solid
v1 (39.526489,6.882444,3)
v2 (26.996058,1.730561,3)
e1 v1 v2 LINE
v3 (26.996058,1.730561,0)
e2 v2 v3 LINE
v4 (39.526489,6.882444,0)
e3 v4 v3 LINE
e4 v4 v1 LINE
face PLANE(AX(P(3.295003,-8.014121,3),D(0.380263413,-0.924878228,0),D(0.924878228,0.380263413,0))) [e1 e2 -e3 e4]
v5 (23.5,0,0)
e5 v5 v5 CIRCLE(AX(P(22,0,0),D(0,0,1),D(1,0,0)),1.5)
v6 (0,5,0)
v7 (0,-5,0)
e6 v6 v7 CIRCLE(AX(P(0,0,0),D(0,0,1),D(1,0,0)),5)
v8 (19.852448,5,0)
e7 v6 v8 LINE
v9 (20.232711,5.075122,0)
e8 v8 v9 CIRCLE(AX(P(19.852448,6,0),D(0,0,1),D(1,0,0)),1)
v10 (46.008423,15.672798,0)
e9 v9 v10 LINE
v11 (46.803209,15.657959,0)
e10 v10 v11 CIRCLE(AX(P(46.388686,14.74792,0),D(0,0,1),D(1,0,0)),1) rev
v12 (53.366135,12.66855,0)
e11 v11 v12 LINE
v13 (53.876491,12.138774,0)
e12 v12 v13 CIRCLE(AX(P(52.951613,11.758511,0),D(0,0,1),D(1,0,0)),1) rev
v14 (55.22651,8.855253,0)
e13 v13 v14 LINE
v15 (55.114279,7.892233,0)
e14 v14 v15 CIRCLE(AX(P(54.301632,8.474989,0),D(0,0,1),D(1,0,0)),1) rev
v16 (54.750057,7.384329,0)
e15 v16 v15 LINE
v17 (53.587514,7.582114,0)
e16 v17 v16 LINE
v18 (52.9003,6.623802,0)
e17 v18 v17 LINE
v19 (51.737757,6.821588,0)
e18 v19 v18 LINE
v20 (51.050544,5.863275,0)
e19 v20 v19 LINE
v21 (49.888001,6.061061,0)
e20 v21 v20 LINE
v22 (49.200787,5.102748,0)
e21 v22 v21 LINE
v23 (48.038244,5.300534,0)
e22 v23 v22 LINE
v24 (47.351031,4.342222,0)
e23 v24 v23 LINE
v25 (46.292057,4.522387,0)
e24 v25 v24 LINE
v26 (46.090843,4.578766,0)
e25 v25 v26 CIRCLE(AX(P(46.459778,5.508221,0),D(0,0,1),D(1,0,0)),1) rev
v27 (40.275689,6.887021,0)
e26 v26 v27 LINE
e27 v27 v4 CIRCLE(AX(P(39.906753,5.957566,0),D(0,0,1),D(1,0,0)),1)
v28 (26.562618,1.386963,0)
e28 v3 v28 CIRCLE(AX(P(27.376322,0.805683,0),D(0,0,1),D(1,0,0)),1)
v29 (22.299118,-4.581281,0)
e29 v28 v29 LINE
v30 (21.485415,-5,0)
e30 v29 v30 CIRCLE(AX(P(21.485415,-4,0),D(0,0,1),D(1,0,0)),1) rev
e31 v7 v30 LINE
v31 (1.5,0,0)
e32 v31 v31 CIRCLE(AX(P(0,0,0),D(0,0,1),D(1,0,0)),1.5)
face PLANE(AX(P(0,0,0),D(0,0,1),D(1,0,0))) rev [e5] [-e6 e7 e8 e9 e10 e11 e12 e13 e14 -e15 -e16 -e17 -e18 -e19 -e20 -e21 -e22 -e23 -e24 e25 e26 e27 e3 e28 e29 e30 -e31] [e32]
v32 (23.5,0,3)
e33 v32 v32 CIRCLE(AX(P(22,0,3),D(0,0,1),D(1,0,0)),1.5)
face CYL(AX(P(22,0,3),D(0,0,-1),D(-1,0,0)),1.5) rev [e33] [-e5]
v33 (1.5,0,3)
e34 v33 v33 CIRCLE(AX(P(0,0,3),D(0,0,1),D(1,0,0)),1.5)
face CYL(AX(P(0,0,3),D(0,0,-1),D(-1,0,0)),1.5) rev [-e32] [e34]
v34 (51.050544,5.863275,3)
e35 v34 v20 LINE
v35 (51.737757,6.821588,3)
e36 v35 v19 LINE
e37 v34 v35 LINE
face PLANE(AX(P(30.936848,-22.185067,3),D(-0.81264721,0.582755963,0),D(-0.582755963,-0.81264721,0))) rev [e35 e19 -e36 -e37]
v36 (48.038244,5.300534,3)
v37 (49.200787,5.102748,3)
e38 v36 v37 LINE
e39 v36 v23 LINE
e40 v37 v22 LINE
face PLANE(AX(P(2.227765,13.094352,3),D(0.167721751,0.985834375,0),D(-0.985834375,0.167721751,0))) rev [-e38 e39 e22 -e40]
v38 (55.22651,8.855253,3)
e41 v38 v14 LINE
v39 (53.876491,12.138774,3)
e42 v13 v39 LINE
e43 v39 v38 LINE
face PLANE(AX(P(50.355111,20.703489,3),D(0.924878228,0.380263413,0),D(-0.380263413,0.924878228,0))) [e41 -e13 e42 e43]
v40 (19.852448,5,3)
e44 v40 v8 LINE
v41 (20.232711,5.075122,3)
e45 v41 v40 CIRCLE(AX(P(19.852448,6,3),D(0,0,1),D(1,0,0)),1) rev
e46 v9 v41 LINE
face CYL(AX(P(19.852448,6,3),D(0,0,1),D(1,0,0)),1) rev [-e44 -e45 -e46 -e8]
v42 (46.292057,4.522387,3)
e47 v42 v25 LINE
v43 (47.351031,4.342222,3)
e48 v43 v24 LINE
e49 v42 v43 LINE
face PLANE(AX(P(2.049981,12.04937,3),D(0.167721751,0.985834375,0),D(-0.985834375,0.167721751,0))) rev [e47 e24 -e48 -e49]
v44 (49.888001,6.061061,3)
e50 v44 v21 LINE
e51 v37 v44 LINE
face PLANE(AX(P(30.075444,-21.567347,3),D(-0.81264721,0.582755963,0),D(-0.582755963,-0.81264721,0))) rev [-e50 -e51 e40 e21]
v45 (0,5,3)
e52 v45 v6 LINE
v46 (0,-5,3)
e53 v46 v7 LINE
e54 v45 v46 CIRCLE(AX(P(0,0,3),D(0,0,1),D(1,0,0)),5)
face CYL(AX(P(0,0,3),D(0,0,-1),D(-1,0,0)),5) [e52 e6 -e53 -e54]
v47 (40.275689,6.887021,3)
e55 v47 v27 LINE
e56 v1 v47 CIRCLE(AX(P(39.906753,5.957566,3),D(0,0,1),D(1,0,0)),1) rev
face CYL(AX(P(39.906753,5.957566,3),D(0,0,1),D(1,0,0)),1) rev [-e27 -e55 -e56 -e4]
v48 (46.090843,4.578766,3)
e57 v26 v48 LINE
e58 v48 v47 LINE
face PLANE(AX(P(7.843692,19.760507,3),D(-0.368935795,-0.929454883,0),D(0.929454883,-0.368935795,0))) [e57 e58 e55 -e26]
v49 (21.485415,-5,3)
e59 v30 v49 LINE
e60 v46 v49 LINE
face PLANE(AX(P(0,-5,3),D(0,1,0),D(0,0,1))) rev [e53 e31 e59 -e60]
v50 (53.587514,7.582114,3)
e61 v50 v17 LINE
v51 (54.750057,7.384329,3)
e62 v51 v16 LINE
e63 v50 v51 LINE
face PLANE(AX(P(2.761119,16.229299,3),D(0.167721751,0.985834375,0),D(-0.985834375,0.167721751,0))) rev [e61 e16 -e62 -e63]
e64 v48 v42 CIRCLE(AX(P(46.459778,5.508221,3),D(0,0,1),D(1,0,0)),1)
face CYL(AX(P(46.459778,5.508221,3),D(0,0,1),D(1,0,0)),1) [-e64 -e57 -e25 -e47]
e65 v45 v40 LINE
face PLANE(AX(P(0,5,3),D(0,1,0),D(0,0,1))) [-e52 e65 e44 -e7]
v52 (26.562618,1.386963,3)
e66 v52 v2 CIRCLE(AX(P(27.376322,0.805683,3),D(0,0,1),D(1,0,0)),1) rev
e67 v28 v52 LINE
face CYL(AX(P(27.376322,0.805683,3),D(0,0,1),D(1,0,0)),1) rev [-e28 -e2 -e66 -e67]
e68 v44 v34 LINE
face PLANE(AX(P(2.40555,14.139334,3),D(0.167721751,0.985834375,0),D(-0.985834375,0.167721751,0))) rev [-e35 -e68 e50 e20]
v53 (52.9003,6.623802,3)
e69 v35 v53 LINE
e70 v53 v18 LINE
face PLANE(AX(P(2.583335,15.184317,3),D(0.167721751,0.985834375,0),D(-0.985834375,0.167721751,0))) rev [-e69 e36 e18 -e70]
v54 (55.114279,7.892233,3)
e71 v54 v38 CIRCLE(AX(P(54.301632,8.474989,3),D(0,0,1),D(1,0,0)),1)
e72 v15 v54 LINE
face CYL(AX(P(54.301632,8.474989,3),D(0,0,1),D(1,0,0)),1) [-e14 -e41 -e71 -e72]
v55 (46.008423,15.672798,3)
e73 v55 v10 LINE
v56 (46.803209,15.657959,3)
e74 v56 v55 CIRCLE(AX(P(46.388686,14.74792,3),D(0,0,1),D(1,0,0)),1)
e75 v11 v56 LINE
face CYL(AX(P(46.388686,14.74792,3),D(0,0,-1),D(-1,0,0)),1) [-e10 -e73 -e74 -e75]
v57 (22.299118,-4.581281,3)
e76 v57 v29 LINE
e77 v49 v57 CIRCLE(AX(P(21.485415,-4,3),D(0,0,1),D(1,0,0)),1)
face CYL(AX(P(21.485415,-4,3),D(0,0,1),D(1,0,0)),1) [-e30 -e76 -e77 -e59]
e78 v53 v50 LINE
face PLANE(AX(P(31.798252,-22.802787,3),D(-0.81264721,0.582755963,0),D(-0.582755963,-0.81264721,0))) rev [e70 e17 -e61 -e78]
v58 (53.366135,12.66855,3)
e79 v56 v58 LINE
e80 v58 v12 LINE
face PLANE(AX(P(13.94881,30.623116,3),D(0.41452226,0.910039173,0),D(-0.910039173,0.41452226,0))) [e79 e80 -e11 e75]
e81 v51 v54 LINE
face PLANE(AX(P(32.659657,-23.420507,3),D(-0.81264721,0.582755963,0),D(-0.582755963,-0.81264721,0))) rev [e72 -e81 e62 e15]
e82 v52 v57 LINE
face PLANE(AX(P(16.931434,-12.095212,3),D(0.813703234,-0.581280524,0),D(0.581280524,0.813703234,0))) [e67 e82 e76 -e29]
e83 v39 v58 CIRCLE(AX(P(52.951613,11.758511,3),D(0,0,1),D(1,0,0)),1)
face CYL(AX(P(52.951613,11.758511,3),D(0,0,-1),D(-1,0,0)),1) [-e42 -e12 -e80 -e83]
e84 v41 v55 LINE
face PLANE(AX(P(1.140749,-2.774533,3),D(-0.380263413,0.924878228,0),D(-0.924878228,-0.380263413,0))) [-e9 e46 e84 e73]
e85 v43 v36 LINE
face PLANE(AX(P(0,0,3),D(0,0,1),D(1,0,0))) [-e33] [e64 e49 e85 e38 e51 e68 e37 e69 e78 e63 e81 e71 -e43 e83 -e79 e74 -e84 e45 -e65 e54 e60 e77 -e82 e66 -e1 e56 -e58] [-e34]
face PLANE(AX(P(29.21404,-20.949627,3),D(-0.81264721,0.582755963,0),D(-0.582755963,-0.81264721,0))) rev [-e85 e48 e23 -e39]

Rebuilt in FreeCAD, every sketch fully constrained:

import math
import FreeCAD as App
import Part
import Sketcher
Q = App.Units.Quantity


def edges_at(feature, points):
    """Names of the edges that pass closest to the given points."""
    edges = feature.Shape.Edges
    near = lambda p: min(range(len(edges)), key=lambda i: edges[i].distToShape(Part.Vertex(*p))[0])
    return sorted({f"Edge{near(p) + 1}" for p in points})

doc = App.newDocument("Part")
body = doc.addObject("PartDesign::Body", "Body")

sketch1 = body.newObject("Sketcher::SketchObject", "Sketch")
sketch1.AttachmentSupport = (doc.getObject("XY_Plane"), [""])
sketch1.MapMode = "FlatFace"
sketch1.addGeometry([
    Part.LineSegment(App.Vector(20.1, 5, 0), App.Vector(0, 5, 0)),
    Part.ArcOfCircle(Part.Circle(App.Vector(0, 0, 0), App.Vector(0, 0, 1), 5), math.radians(90), math.radians(270)),
    Part.LineSegment(App.Vector(0, -5, 0), App.Vector(22, -5, 0)),
    Part.LineSegment(App.Vector(22, -5, 0), App.Vector(26.7, 1.6, 0)),
    Part.LineSegment(App.Vector(26.7, 1.6, 0), App.Vector(39.9, 7, 0)),
    Part.LineSegment(App.Vector(39.9, 7, 0), App.Vector(46.2, 4.5, 0)),
    Part.LineSegment(App.Vector(46.2, 4.5, 0), App.Vector(47.4, 4.3, 0)),
    Part.LineSegment(App.Vector(47.4, 4.3, 0), App.Vector(48, 5.3, 0)),
    Part.LineSegment(App.Vector(48, 5.3, 0), App.Vector(49.2, 5.1, 0)),
    Part.LineSegment(App.Vector(49.2, 5.1, 0), App.Vector(49.9, 6.1, 0)),
    Part.LineSegment(App.Vector(49.9, 6.1, 0), App.Vector(51.1, 5.9, 0)),
    Part.LineSegment(App.Vector(51.1, 5.9, 0), App.Vector(51.7, 6.8, 0)),
    Part.LineSegment(App.Vector(51.7, 6.8, 0), App.Vector(52.9, 6.6, 0)),
    Part.LineSegment(App.Vector(52.9, 6.6, 0), App.Vector(53.6, 7.6, 0)),
    Part.LineSegment(App.Vector(53.6, 7.6, 0), App.Vector(54.8, 7.4, 0)),
    Part.LineSegment(App.Vector(54.8, 7.4, 0), App.Vector(55.4, 8.3, 0)),
    Part.LineSegment(App.Vector(55.4, 8.3, 0), App.Vector(53.7, 12.5, 0)),
    Part.LineSegment(App.Vector(53.7, 12.5, 0), App.Vector(46.4, 15.8, 0)),
    Part.LineSegment(App.Vector(46.4, 15.8, 0), App.Vector(20.1, 5, 0)),
    Part.Circle(App.Vector(0, 0, 0), App.Vector(0, 0, 1), 1.5),
    Part.Circle(App.Vector(22, 0, 0), App.Vector(0, 0, 1), 1.5),
], False)
sketch1.addConstraint([
    Sketcher.Constraint("Tangent", 0, 2, 1, 1),
    Sketcher.Constraint("Tangent", 1, 2, 2, 1),
    Sketcher.Constraint("Coincident", 2, 2, 3, 1),
    Sketcher.Constraint("Coincident", 3, 2, 4, 1),
    Sketcher.Constraint("Coincident", 4, 2, 5, 1),
    Sketcher.Constraint("Coincident", 5, 2, 6, 1),
    Sketcher.Constraint("Coincident", 6, 2, 7, 1),
    Sketcher.Constraint("Coincident", 7, 2, 8, 1),
    Sketcher.Constraint("Coincident", 8, 2, 9, 1),
    Sketcher.Constraint("Coincident", 9, 2, 10, 1),
    Sketcher.Constraint("Coincident", 10, 2, 11, 1),
    Sketcher.Constraint("Coincident", 11, 2, 12, 1),
    Sketcher.Constraint("Coincident", 12, 2, 13, 1),
    Sketcher.Constraint("Coincident", 13, 2, 14, 1),
    Sketcher.Constraint("Coincident", 14, 2, 15, 1),
    Sketcher.Constraint("Coincident", 15, 2, 16, 1),
    Sketcher.Constraint("Coincident", 16, 2, 17, 1),
    Sketcher.Constraint("Coincident", 17, 2, 18, 1),
    Sketcher.Constraint("Coincident", 18, 2, 0, 1),
    Sketcher.Constraint("Horizontal", 0),
    Sketcher.Constraint("Horizontal", 2),
    Sketcher.Constraint("Coincident", 1, 3, -1, 1),
    Sketcher.Constraint("Coincident", 19, 3, -1, 1),
    Sketcher.Constraint("Equal", 19, 20),
    Sketcher.Constraint("PointOnObject", 20, 3, -1),
    Sketcher.Constraint("Parallel", 6, 8),
    Sketcher.Constraint("Parallel", 7, 9),
    Sketcher.Constraint("Parallel", 8, 10),
    Sketcher.Constraint("Parallel", 9, 11),
    Sketcher.Constraint("Parallel", 10, 12),
    Sketcher.Constraint("Parallel", 11, 13),
    Sketcher.Constraint("Parallel", 12, 14),
    Sketcher.Constraint("Parallel", 13, 15),
    Sketcher.Constraint("Perpendicular", 4, 16),
    Sketcher.Constraint("Perpendicular", 16, 18),
    Sketcher.Constraint("Vertical", 20, 3, 2, 2),
    Sketcher.Constraint("Equal", 6, 7),
    Sketcher.Constraint("Equal", 7, 8),
    Sketcher.Constraint("Equal", 8, 9),
    Sketcher.Constraint("Equal", 9, 10),
    Sketcher.Constraint("Equal", 10, 11),
    Sketcher.Constraint("Equal", 11, 12),
    Sketcher.Constraint("Equal", 12, 13),
    Sketcher.Constraint("Equal", 13, 14),
    Sketcher.Constraint("Equal", 14, 15),
    Sketcher.Constraint("Diameter", 19, 3.0),
    Sketcher.Constraint("Radius", 1, 5.0),
    Sketcher.Constraint("DistanceX", 2, 1, 2, 2, 22.0),
    Sketcher.Constraint("Distance", 16, 4.5),
    Sketcher.Constraint("Distance", 18, 28.5),
    Sketcher.Constraint("DistanceX", 0, 2, 0, 1, 20.05),
    Sketcher.Constraint("Angle", 4, Q("22.35 deg")),
    Sketcher.Constraint("Angle", 5, Q("-21.65 deg")),
    Sketcher.Constraint("Distance", 4, 14.24),
    Sketcher.Constraint("DistanceX", -1, 1, 9, 2, 49.888001),
    Sketcher.Constraint("DistanceX", -1, 1, 3, 2, 26.729898),
    Sketcher.Constraint("DistanceX", -1, 1, 12, 2, 52.9003),
    Sketcher.Constraint("DistanceY", -1, 1, 3, 2, 1.62113),
    Sketcher.Constraint("DistanceX", -1, 1, 5, 2, 46.188488),
    Sketcher.Constraint("DistanceY", -1, 1, 6, 2, 4.342222),
])
pad1 = body.newObject("PartDesign::Pad", "Pad")
pad1.Profile = sketch1
pad1.Length = 3
doc.recompute()

fillet = body.newObject("PartDesign::Fillet", "Fillet")
fillet.Base = (pad1, edges_at(pad1, [
    (22, -5, 1.5),
    (20.05, 5, 1.5),
    (46.409, 15.838, 1.5),
    (53.726, 12.505, 1.5),
    (55.437, 8.343, 1.5),
    (46.188, 4.54, 1.5),
    (39.9, 7.036, 1.5),
    (26.73, 1.621, 1.5),
]))
fillet.Radius = 1

doc.recompute()
